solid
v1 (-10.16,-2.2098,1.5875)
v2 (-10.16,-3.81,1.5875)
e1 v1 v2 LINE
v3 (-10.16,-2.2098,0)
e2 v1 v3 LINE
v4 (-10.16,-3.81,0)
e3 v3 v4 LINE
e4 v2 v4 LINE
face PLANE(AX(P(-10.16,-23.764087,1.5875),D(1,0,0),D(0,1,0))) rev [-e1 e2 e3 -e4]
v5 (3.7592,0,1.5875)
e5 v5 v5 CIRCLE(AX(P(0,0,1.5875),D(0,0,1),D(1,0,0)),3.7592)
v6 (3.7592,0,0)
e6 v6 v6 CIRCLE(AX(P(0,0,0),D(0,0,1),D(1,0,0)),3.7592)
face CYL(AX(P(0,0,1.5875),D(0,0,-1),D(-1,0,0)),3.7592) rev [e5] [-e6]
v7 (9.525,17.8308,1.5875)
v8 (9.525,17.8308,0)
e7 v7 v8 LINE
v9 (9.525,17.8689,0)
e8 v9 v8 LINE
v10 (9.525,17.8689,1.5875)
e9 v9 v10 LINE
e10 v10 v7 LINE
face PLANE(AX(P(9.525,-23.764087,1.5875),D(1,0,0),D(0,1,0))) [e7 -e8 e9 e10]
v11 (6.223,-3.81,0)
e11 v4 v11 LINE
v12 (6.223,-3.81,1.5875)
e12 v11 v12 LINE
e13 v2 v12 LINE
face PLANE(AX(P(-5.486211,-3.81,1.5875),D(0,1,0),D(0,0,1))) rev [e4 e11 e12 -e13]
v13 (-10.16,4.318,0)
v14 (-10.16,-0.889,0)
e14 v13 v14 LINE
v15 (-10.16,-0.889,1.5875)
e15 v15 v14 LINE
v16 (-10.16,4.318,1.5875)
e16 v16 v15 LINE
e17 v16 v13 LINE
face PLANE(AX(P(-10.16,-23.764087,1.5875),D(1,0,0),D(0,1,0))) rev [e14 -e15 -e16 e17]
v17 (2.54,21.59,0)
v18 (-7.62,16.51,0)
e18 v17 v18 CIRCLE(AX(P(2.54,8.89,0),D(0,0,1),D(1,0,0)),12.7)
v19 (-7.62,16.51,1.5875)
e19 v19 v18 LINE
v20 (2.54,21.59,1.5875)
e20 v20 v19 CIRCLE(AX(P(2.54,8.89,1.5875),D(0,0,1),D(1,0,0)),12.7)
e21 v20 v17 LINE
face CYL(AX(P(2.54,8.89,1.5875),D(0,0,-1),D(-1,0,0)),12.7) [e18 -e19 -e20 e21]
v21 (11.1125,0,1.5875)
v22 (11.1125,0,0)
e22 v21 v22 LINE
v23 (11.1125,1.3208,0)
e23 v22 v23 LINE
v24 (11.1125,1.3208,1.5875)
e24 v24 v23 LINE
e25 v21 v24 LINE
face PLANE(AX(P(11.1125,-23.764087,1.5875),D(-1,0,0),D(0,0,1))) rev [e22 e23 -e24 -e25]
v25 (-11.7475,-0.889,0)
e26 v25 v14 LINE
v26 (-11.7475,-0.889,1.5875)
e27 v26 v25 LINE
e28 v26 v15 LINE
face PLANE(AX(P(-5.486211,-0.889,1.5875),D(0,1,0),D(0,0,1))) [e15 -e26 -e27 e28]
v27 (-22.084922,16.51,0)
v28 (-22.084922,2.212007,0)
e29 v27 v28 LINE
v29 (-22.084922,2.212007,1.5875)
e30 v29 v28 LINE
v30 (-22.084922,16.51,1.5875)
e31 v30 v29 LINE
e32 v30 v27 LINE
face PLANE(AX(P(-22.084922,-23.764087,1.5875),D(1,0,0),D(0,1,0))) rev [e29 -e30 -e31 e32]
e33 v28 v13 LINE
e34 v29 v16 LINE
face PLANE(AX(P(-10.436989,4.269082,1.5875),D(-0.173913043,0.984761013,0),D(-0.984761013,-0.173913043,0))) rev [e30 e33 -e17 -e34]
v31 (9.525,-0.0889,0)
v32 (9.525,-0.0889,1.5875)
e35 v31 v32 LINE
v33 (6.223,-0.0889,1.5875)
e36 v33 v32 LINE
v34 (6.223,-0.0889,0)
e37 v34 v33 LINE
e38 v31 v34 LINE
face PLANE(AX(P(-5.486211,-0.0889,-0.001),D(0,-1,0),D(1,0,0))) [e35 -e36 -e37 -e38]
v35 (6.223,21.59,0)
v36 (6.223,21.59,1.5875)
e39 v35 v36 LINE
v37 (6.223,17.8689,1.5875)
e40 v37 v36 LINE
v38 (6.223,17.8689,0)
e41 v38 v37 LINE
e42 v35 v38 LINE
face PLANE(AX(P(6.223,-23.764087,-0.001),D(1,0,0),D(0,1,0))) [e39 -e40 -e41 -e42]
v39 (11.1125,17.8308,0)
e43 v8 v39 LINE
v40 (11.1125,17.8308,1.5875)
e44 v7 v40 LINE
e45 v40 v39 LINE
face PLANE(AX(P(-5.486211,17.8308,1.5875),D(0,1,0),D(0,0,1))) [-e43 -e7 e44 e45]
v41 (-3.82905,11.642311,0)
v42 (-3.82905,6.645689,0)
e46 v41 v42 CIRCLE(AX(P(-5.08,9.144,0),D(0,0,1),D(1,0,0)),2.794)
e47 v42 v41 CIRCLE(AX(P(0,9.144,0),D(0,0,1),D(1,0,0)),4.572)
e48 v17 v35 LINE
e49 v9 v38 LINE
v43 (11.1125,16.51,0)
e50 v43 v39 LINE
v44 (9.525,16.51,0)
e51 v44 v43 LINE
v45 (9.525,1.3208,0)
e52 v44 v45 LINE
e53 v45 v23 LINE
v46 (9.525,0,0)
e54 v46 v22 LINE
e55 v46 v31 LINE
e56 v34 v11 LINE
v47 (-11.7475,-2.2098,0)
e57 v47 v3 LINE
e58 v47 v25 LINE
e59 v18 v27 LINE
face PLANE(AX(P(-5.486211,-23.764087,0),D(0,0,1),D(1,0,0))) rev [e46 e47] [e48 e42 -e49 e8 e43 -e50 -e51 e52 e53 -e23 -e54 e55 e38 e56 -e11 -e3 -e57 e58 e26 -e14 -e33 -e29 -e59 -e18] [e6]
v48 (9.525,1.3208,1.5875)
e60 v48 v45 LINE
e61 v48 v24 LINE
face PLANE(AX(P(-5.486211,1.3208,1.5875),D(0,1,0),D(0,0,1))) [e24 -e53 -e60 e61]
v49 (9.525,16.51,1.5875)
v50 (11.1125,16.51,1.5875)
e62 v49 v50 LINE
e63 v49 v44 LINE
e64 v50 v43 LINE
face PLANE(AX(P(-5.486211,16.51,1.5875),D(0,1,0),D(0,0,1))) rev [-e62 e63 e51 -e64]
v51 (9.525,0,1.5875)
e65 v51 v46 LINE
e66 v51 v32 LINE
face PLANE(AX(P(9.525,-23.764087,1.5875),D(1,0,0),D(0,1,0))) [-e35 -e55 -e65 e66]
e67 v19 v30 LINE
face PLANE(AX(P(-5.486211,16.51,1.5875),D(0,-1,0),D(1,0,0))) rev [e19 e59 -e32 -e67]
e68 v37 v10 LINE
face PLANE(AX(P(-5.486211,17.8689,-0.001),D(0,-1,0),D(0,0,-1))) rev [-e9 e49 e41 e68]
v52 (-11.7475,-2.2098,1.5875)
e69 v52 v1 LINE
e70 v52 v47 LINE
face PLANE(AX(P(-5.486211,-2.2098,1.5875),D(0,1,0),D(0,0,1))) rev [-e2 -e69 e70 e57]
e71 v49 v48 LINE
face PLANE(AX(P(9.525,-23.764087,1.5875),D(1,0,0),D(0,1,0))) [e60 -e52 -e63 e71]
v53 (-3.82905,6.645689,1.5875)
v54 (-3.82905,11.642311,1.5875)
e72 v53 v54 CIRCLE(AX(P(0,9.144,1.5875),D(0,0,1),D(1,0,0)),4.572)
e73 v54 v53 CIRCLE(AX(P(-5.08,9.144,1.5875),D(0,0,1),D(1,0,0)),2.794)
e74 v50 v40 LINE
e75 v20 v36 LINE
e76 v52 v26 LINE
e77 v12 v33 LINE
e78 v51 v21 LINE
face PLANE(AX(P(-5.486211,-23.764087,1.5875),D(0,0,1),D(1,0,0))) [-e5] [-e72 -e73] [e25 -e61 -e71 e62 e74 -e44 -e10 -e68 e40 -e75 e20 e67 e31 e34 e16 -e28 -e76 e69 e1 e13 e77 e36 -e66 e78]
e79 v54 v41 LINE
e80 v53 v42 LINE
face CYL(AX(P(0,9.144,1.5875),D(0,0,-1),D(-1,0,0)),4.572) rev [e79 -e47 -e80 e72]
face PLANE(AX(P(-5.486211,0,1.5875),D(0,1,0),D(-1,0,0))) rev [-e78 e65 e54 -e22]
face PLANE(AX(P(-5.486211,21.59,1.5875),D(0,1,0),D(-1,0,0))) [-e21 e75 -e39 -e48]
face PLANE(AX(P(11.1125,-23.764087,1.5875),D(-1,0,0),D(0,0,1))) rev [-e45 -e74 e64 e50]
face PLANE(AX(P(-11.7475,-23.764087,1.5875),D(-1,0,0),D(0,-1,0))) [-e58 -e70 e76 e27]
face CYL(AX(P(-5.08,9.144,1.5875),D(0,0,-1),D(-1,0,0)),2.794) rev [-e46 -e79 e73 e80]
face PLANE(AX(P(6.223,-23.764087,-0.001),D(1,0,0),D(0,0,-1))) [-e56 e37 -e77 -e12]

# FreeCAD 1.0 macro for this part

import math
import FreeCAD as App
import Part
import Sketcher
Q = App.Units.Quantity

doc = App.newDocument("Part")
body = doc.addObject("PartDesign::Body", "Body")

sketch1 = body.newObject("Sketcher::SketchObject", "Sketch")
sketch1.AttachmentSupport = (doc.getObject("XY_Plane"), [""])
sketch1.MapMode = "FlatFace"
sketch1.addGeometry([
    Part.LineSegment(App.Vector(9.5, 21.6, 0), App.Vector(2.5, 21.6, 0)),
    Part.ArcOfCircle(Part.Circle(App.Vector(2.5, 8.9, 0), App.Vector(0, 0, 1), 12.7), math.radians(90), math.radians(143)),
    Part.LineSegment(App.Vector(-7.6, 16.5, 0), App.Vector(-22.1, 16.5, 0)),
    Part.LineSegment(App.Vector(-22.1, 16.5, 0), App.Vector(-22.1, 2.2, 0)),
    Part.LineSegment(App.Vector(-22.1, 2.2, 0), App.Vector(-10.2, 4.3, 0)),
    Part.LineSegment(App.Vector(-10.2, 4.3, 0), App.Vector(-10.2, -0.9, 0)),
    Part.LineSegment(App.Vector(-10.2, -0.9, 0), App.Vector(-11.7, -0.9, 0)),
    Part.LineSegment(App.Vector(-11.7, -0.9, 0), App.Vector(-11.7, -2.2, 0)),
    Part.LineSegment(App.Vector(-11.7, -2.2, 0), App.Vector(-10.2, -2.2, 0)),
    Part.LineSegment(App.Vector(-10.2, -2.2, 0), App.Vector(-10.2, -3.8, 0)),
    Part.LineSegment(App.Vector(-10.2, -3.8, 0), App.Vector(9.5, -3.8, 0)),
    Part.LineSegment(App.Vector(9.5, -3.8, 0), App.Vector(9.5, 0, 0)),
    Part.LineSegment(App.Vector(9.5, 0, 0), App.Vector(11.1, 0, 0)),
    Part.LineSegment(App.Vector(11.1, 0, 0), App.Vector(11.1, 1.3, 0)),
    Part.LineSegment(App.Vector(11.1, 1.3, 0), App.Vector(9.5, 1.3, 0)),
    Part.LineSegment(App.Vector(9.5, 1.3, 0), App.Vector(9.5, 16.5, 0)),
    Part.LineSegment(App.Vector(9.5, 16.5, 0), App.Vector(11.1, 16.5, 0)),
    Part.LineSegment(App.Vector(11.1, 16.5, 0), App.Vector(11.1, 17.8, 0)),
    Part.LineSegment(App.Vector(11.1, 17.8, 0), App.Vector(9.5, 17.8, 0)),
    Part.LineSegment(App.Vector(9.5, 17.8, 0), App.Vector(9.5, 21.6, 0)),
    Part.Circle(App.Vector(0, 0, 0), App.Vector(0, 0, 1), 3.8),
    Part.ArcOfCircle(Part.Circle(App.Vector(0, 9.1, 0), App.Vector(0, 0, 1), 4.6), math.radians(-147), math.radians(147)),
    Part.ArcOfCircle(Part.Circle(App.Vector(-5.1, 9.1, 0), App.Vector(0, 0, 1), 2.8), math.radians(63), math.radians(297)),
], False)
sketch1.addConstraint([
    Sketcher.Constraint("Tangent", 0, 2, 1, 1),
    Sketcher.Constraint("Coincident", 1, 2, 2, 1),
    Sketcher.Constraint("Coincident", 2, 2, 3, 1),
    Sketcher.Constraint("Coincident", 3, 2, 4, 1),
    Sketcher.Constraint("Coincident", 4, 2, 5, 1),
    Sketcher.Constraint("Coincident", 5, 2, 6, 1),
    Sketcher.Constraint("Coincident", 6, 2, 7, 1),
    Sketcher.Constraint("Coincident", 7, 2, 8, 1),
    Sketcher.Constraint("Coincident", 8, 2, 9, 1),
    Sketcher.Constraint("Coincident", 9, 2, 10, 1),
    Sketcher.Constraint("Coincident", 10, 2, 11, 1),
    Sketcher.Constraint("Coincident", 11, 2, 12, 1),
    Sketcher.Constraint("Coincident", 12, 2, 13, 1),
    Sketcher.Constraint("Coincident", 13, 2, 14, 1),
    Sketcher.Constraint("Coincident", 14, 2, 15, 1),
    Sketcher.Constraint("Coincident", 15, 2, 16, 1),
    Sketcher.Constraint("Coincident", 16, 2, 17, 1),
    Sketcher.Constraint("Coincident", 17, 2, 18, 1),
    Sketcher.Constraint("Coincident", 18, 2, 19, 1),
    Sketcher.Constraint("Coincident", 19, 2, 0, 1),
    Sketcher.Constraint("Coincident", 21, 1, 22, 2),
    Sketcher.Constraint("Coincident", 22, 1, 21, 2),
    Sketcher.Constraint("Horizontal", 0),
    Sketcher.Constraint("Horizontal", 2),
    Sketcher.Constraint("Vertical", 3),
    Sketcher.Constraint("Vertical", 5),
    Sketcher.Constraint("Horizontal", 6),
    Sketcher.Constraint("Vertical", 7),
    Sketcher.Constraint("Horizontal", 8),
    Sketcher.Constraint("Vertical", 9),
    Sketcher.Constraint("Horizontal", 10),
    Sketcher.Constraint("Vertical", 11),
    Sketcher.Constraint("Horizontal", 12),
    Sketcher.Constraint("Vertical", 13),
    Sketcher.Constraint("Horizontal", 14),
    Sketcher.Constraint("Vertical", 15),
    Sketcher.Constraint("Horizontal", 16),
    Sketcher.Constraint("Vertical", 17),
    Sketcher.Constraint("Horizontal", 18),
    Sketcher.Constraint("Vertical", 19),
    Sketcher.Constraint("Coincident", 20, 3, -1, 1),
    Sketcher.Constraint("PointOnObject", 21, 3, -2),
    Sketcher.Constraint("PointOnObject", 11, 2, -1),
    Sketcher.Constraint("Horizontal", 21, 3, 22, 3),
    Sketcher.Constraint("Horizontal", 2, 2, 15, 2),
    Sketcher.Constraint("Vertical", 5, 2, 8, 2),
    Sketcher.Constraint("Vertical", 11, 2, 14, 2),
    Sketcher.Constraint("Vertical", 13, 2, 16, 2),
    Sketcher.Constraint("Vertical", 15, 2, 18, 2),
    Sketcher.Constraint("Equal", 8, 12),
    Sketcher.Constraint("Equal", 7, 13),
    Sketcher.Constraint("Equal", 13, 17),
    Sketcher.Constraint("Radius", 1, Q("0.5 in")),
    Sketcher.Constraint("Radius", 21, Q("0.18 in")),
    Sketcher.Constraint("Radius", 22, Q("0.11 in")),
    Sketcher.Constraint("Diameter", 20, Q("0.296 in")),
    Sketcher.Constraint("DistanceY", 11, 1, 11, 2, Q("0.15 in")),
    Sketcher.Constraint("DistanceX", -1, 1, 1, 3, Q("0.1 in")),
    Sketcher.Constraint("DistanceX", 22, 3, -1, 1, Q("0.2 in")),
    Sketcher.Constraint("DistanceX", 1, 2, -1, 1, Q("0.3 in")),
    Sketcher.Constraint("DistanceX", 4, 2, -1, 1, Q("0.4 in")),
    Sketcher.Constraint("DistanceY", 10, 2, 1, 3, Q("0.5 in")),
    Sketcher.Constraint("DistanceX", 0, 2, 0, 1, Q("0.275 in")),
    Sketcher.Constraint("DistanceX", 6, 2, 6, 1, Q("0.0625 in")),
    Sketcher.Constraint("DistanceY", 5, 2, 5, 1, Q("0.205 in")),
    Sketcher.Constraint("DistanceY", 7, 2, 7, 1, Q("0.052 in")),
    Sketcher.Constraint("DistanceY", 9, 2, 9, 1, Q("0.063 in")),
    Sketcher.Constraint("DistanceY", -1, 1, 21, 3, Q("0.36 in")),
    Sketcher.Constraint("DistanceX", 2, 2, 2, 1, Q("14.464922 mm")),
    Sketcher.Constraint("DistanceY", 3, 2, 3, 1, Q("14.297993 mm")),
])
pad1 = body.newObject("PartDesign::Pad", "Pad")
pad1.Profile = sketch1
pad1.Length = Q("0.0625 in")

sketch2 = body.newObject("Sketcher::SketchObject", "Sketch001")
sketch2.AttachmentSupport = (doc.getObject("XY_Plane"), [""])
sketch2.MapMode = "FlatFace"
sketch2.AttachmentOffset = App.Placement(App.Vector(0, 0, 0.0625 * 25.4), App.Rotation())
sketch2.addGeometry([
    Part.LineSegment(App.Vector(6.2, -0.1, 0), App.Vector(6.2, -3.8, 0)),
    Part.LineSegment(App.Vector(6.2, -3.8, 0), App.Vector(9.5, -3.8, 0)),
    Part.LineSegment(App.Vector(9.5, -3.8, 0), App.Vector(9.5, -0.1, 0)),
    Part.LineSegment(App.Vector(9.5, -0.1, 0), App.Vector(6.2, -0.1, 0)),
], False)
sketch2.addConstraint([
    Sketcher.Constraint("Coincident", 0, 2, 1, 1),
    Sketcher.Constraint("Coincident", 1, 2, 2, 1),
    Sketcher.Constraint("Coincident", 2, 2, 3, 1),
    Sketcher.Constraint("Coincident", 3, 2, 0, 1),
    Sketcher.Constraint("Vertical", 0),
    Sketcher.Constraint("Horizontal", 1),
    Sketcher.Constraint("Vertical", 2),
    Sketcher.Constraint("Horizontal", 3),
    Sketcher.Constraint("DistanceX", 1, 1, 1, 2, Q("0.13 in")),
    Sketcher.Constraint("DistanceY", 0, 2, -1, 1, Q("0.15 in")),
    Sketcher.Constraint("DistanceY", 0, 2, 0, 1, Q("0.1465 in")),
    Sketcher.Constraint("DistanceX", -1, 1, 0, 2, Q("0.245 in")),
])
pocket1 = body.newObject("PartDesign::Pocket", "Pocket")
pocket1.Profile = sketch2
pocket1.Type = "UpToFirst"

sketch3 = body.newObject("Sketcher::SketchObject", "Sketch002")
sketch3.AttachmentSupport = (doc.getObject("XY_Plane"), [""])
sketch3.MapMode = "FlatFace"
sketch3.AttachmentOffset = App.Placement(App.Vector(0, 0, 0.0625 * 25.4), App.Rotation())
sketch3.addGeometry([
    Part.LineSegment(App.Vector(9.5, 21.6, 0), App.Vector(6.2, 21.6, 0)),
    Part.LineSegment(App.Vector(6.2, 21.6, 0), App.Vector(6.2, 17.9, 0)),
    Part.LineSegment(App.Vector(6.2, 17.9, 0), App.Vector(9.5, 17.9, 0)),
    Part.LineSegment(App.Vector(9.5, 17.9, 0), App.Vector(9.5, 21.6, 0)),
], False)
sketch3.addConstraint([
    Sketcher.Constraint("Coincident", 0, 2, 1, 1),
    Sketcher.Constraint("Coincident", 1, 2, 2, 1),
    Sketcher.Constraint("Coincident", 2, 2, 3, 1),
    Sketcher.Constraint("Coincident", 3, 2, 0, 1),
    Sketcher.Constraint("Horizontal", 0),
    Sketcher.Constraint("Vertical", 1),
    Sketcher.Constraint("Horizontal", 2),
    Sketcher.Constraint("Vertical", 3),
    Sketcher.Constraint("DistanceX", 0, 2, 0, 1, Q("0.13 in")),
    Sketcher.Constraint("DistanceY", -1, 1, 0, 2, Q("0.85 in")),
    Sketcher.Constraint("DistanceY", 1, 2, 1, 1, Q("0.1465 in")),
    Sketcher.Constraint("DistanceX", -1, 1, 0, 2, Q("0.245 in")),
])
pocket2 = body.newObject("PartDesign::Pocket", "Pocket001")
pocket2.Profile = sketch3
pocket2.Type = "UpToFirst"

doc.recompute()
